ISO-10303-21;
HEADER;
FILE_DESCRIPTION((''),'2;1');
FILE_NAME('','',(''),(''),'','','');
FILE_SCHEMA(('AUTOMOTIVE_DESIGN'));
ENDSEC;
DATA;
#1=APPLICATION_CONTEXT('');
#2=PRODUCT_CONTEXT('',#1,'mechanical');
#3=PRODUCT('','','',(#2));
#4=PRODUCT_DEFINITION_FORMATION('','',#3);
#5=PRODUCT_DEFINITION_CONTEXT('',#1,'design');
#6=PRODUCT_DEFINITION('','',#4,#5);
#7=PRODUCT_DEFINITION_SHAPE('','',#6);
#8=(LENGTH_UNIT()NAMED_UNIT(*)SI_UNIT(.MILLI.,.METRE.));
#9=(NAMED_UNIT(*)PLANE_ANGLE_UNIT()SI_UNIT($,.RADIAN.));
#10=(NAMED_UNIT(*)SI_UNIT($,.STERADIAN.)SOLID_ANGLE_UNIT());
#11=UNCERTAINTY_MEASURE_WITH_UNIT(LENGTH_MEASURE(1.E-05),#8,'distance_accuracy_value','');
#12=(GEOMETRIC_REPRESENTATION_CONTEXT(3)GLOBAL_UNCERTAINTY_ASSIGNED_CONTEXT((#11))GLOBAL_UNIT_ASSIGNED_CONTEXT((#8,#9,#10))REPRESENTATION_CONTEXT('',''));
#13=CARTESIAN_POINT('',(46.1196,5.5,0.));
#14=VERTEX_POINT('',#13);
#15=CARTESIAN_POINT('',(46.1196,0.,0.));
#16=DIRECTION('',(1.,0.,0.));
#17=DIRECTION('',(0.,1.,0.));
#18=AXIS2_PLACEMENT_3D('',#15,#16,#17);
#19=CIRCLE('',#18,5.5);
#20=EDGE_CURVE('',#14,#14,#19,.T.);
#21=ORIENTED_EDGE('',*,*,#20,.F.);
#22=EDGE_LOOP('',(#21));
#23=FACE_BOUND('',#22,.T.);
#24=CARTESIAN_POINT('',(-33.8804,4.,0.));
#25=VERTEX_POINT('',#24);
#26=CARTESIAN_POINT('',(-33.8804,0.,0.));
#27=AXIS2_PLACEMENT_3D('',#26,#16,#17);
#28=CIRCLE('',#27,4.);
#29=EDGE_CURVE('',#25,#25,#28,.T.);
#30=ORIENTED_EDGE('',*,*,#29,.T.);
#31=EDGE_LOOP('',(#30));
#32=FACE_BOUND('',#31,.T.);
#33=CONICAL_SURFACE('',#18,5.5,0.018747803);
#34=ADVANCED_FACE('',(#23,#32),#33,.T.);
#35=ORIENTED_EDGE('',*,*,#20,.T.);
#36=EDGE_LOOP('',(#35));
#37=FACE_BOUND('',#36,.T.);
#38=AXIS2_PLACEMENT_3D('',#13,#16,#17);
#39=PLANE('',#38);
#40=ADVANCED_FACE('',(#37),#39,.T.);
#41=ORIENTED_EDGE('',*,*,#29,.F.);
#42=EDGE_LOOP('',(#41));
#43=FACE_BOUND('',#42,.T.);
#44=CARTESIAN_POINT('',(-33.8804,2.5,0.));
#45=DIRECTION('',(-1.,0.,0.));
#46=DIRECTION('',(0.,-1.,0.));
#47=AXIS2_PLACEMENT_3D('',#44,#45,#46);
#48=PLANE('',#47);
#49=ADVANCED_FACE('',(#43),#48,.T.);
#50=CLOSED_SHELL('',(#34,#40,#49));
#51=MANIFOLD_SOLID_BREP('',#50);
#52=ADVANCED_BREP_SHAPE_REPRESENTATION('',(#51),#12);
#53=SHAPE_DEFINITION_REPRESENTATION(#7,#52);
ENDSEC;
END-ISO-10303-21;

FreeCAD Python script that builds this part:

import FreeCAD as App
import Part
import Sketcher
from FreeCAD import Vector
Q = App.Units.Quantity

doc = App.newDocument("Part")
body = doc.addObject("PartDesign::Body", "Body")

sketch1 = body.newObject("Sketcher::SketchObject", "Sketch")
sketch1.AttachmentSupport = (doc.getObject("XY_Plane"), [""])
sketch1.MapMode = "FlatFace"
sketch1.addGeometry(Part.LineSegment(Vector(-38.9, 2.5, 0), Vector(-38.9, 0, 0)), False)
sketch1.addGeometry(Part.LineSegment(Vector(-38.9, 0, 0), Vector(51.1, 0, 0)), False)
sketch1.addGeometry(Part.LineSegment(Vector(51.1, 0, 0), Vector(51.1, 4, 0)), False)
sketch1.addGeometry(Part.LineSegment(Vector(51.1, 4, 0), Vector(46.1, 4, 0)), False)
sketch1.addGeometry(Part.LineSegment(Vector(46.1, 4, 0), Vector(46.1, 5.5, 0)), False)
sketch1.addGeometry(Part.LineSegment(Vector(46.1, 5.5, 0), Vector(-33.9, 4, 0)), False)
sketch1.addGeometry(Part.LineSegment(Vector(-33.9, 4, 0), Vector(-33.9, 2.5, 0)), False)
sketch1.addGeometry(Part.LineSegment(Vector(-33.9, 2.5, 0), Vector(-38.9, 2.5, 0)), False)
sketch1.addConstraint(Sketcher.Constraint("Coincident", 0, 2, 1, 1))
sketch1.addConstraint(Sketcher.Constraint("Coincident", 1, 2, 2, 1))
sketch1.addConstraint(Sketcher.Constraint("Coincident", 2, 2, 3, 1))
sketch1.addConstraint(Sketcher.Constraint("Coincident", 3, 2, 4, 1))
sketch1.addConstraint(Sketcher.Constraint("Coincident", 4, 2, 5, 1))
sketch1.addConstraint(Sketcher.Constraint("Coincident", 5, 2, 6, 1))
sketch1.addConstraint(Sketcher.Constraint("Coincident", 6, 2, 7, 1))
sketch1.addConstraint(Sketcher.Constraint("Coincident", 7, 2, 0, 1))
sketch1.addConstraint(Sketcher.Constraint("Vertical", 0))
sketch1.addConstraint(Sketcher.Constraint("Horizontal", 1))
sketch1.addConstraint(Sketcher.Constraint("Vertical", 2))
sketch1.addConstraint(Sketcher.Constraint("Horizontal", 3))
sketch1.addConstraint(Sketcher.Constraint("Vertical", 4))
sketch1.addConstraint(Sketcher.Constraint("Vertical", 6))
sketch1.addConstraint(Sketcher.Constraint("Horizontal", 7))
sketch1.addConstraint(Sketcher.Constraint("PointOnObject", 0, 2, -1))
sketch1.addConstraint(Sketcher.Constraint("Horizontal", 3, 2, 5, 2))
sketch1.addConstraint(Sketcher.Constraint("Equal", 3, 7))
sketch1.addConstraint(Sketcher.Constraint("Equal", 4, 6))
sketch1.addConstraint(Sketcher.Constraint("DistanceX", 1, 1, 1, 2, Q("90 mm")))
sketch1.addConstraint(Sketcher.Constraint("DistanceX", 3, 2, 3, 1, Q("5 mm")))
sketch1.addConstraint(Sketcher.Constraint("DistanceY", 2, 1, 2, 2, Q("4 mm")))
sketch1.addConstraint(Sketcher.Constraint("DistanceY", 0, 2, 0, 1, Q("2.5 mm")))
sketch1.addConstraint(Sketcher.Constraint("DistanceX", 0, 2, -1, 1, Q("38.8804 mm")))
revolution = body.newObject("PartDesign::Revolution", "Revolution")
revolution.Profile = sketch1
revolution.ReferenceAxis = (sketch1, ["H_Axis"])
revolution.Angle = 360

sketch2 = body.newObject("Sketcher::SketchObject", "Sketch001")
sketch2.AttachmentSupport = (doc.getObject("YZ_Plane"), [""])
sketch2.MapMode = "FlatFace"
sketch2.AttachmentOffset = App.Placement(Vector(0, 0, -33.8804), App.Rotation())
sketch2.addGeometry(Part.Circle(Vector(0, 0, 0), Vector(0, 0, 1), 2.5), False)
sketch2.addConstraint(Sketcher.Constraint("Coincident", 0, 3, -1, 1))
sketch2.addConstraint(Sketcher.Constraint("Diameter", 0, Q("5 mm")))
pocket1 = body.newObject("PartDesign::Pocket", "Pocket")
pocket1.Profile = sketch2
pocket1.Length = 5

sketch3 = body.newObject("Sketcher::SketchObject", "Sketch002")
sketch3.AttachmentSupport = (doc.getObject("YZ_Plane"), [""])
sketch3.MapMode = "FlatFace"
sketch3.AttachmentOffset = App.Placement(Vector(0, 0, 51.1196), App.Rotation())
sketch3.addGeometry(Part.Circle(Vector(0, 0, 0), Vector(0, 0, 1), 4), False)
sketch3.addConstraint(Sketcher.Constraint("Coincident", 0, 3, -1, 1))
sketch3.addConstraint(Sketcher.Constraint("Diameter", 0, Q("8 mm")))
pocket2 = body.newObject("PartDesign::Pocket", "Pocket001")
pocket2.Profile = sketch3
pocket2.Length = 5

doc.recompute()
